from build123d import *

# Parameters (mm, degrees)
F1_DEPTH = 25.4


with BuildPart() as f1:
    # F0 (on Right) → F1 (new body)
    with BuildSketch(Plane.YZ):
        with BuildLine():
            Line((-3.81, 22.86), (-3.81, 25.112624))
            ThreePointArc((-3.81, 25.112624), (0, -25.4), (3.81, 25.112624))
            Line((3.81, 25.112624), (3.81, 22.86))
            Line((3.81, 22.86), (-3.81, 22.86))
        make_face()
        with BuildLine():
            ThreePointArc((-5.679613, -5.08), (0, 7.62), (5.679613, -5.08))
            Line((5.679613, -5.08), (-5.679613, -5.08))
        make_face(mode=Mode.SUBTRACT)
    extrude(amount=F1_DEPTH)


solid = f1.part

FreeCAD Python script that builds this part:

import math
import FreeCAD as App
import Part
import Sketcher
Q = App.Units.Quantity

doc = App.newDocument("Part")
body = doc.addObject("PartDesign::Body", "Body")

sketch1 = doc.addObject("Sketcher::SketchObject", "Sketch")
body.addObject(sketch1)
sketch1.AttachmentSupport = (doc.YZ_Plane, [""])
sketch1.MapMode = "FlatFace"
sketch1.addGeometry([
    Part.LineSegment(App.Vector(-3.8, 22.9, 0), App.Vector(-3.8, 25.1, 0)),
    Part.ArcOfCircle(Part.Circle(App.Vector(0, 0, 0), App.Vector(0, 0, 1), 25.4), math.radians(99), math.radians(441)),
    Part.LineSegment(App.Vector(3.8, 25.1, 0), App.Vector(3.8, 22.9, 0)),
    Part.LineSegment(App.Vector(3.8, 22.9, 0), App.Vector(-3.8, 22.9, 0)),
    Part.LineSegment(App.Vector(5.7, -5.1, 0), App.Vector(-5.7, -5.1, 0)),
    Part.ArcOfCircle(Part.Circle(App.Vector(0, 0, 0), App.Vector(0, 0, 1), 7.6), math.radians(-42), math.radians(222)),
], False)
sketch1.addConstraint([
    Sketcher.Constraint("Coincident", 0, 2, 1, 1),
    Sketcher.Constraint("Coincident", 1, 2, 2, 1),
    Sketcher.Constraint("Coincident", 2, 2, 3, 1),
    Sketcher.Constraint("Coincident", 3, 2, 0, 1),
    Sketcher.Constraint("Coincident", 4, 1, 5, 1),
    Sketcher.Constraint("Coincident", 5, 2, 4, 2),
    Sketcher.Constraint("Vertical", 0),
    Sketcher.Constraint("Vertical", 2),
    Sketcher.Constraint("Horizontal", 3),
    Sketcher.Constraint("Horizontal", 4),
    Sketcher.Constraint("Coincident", 1, 3, -1, 1),
    Sketcher.Constraint("Coincident", 5, 3, -1, 1),
    Sketcher.Constraint("Horizontal", 0, 2, 1, 2),
    Sketcher.Constraint("Radius", 1, Q("1 in")),
    Sketcher.Constraint("Radius", 5, Q("0.3 in")),
    Sketcher.Constraint("DistanceX", 3, 2, 3, 1, Q("0.3 in")),
    Sketcher.Constraint("DistanceY", -1, 1, 2, 2, Q("0.9 in")),
    Sketcher.Constraint("DistanceY", 4, 1, -1, 1, Q("0.2 in")),
])
pad1 = doc.addObject("PartDesign::Pad", "Pad")
body.addObject(pad1)
pad1.Profile = sketch1
pad1.Length = Q("1 in")

doc.recompute()
